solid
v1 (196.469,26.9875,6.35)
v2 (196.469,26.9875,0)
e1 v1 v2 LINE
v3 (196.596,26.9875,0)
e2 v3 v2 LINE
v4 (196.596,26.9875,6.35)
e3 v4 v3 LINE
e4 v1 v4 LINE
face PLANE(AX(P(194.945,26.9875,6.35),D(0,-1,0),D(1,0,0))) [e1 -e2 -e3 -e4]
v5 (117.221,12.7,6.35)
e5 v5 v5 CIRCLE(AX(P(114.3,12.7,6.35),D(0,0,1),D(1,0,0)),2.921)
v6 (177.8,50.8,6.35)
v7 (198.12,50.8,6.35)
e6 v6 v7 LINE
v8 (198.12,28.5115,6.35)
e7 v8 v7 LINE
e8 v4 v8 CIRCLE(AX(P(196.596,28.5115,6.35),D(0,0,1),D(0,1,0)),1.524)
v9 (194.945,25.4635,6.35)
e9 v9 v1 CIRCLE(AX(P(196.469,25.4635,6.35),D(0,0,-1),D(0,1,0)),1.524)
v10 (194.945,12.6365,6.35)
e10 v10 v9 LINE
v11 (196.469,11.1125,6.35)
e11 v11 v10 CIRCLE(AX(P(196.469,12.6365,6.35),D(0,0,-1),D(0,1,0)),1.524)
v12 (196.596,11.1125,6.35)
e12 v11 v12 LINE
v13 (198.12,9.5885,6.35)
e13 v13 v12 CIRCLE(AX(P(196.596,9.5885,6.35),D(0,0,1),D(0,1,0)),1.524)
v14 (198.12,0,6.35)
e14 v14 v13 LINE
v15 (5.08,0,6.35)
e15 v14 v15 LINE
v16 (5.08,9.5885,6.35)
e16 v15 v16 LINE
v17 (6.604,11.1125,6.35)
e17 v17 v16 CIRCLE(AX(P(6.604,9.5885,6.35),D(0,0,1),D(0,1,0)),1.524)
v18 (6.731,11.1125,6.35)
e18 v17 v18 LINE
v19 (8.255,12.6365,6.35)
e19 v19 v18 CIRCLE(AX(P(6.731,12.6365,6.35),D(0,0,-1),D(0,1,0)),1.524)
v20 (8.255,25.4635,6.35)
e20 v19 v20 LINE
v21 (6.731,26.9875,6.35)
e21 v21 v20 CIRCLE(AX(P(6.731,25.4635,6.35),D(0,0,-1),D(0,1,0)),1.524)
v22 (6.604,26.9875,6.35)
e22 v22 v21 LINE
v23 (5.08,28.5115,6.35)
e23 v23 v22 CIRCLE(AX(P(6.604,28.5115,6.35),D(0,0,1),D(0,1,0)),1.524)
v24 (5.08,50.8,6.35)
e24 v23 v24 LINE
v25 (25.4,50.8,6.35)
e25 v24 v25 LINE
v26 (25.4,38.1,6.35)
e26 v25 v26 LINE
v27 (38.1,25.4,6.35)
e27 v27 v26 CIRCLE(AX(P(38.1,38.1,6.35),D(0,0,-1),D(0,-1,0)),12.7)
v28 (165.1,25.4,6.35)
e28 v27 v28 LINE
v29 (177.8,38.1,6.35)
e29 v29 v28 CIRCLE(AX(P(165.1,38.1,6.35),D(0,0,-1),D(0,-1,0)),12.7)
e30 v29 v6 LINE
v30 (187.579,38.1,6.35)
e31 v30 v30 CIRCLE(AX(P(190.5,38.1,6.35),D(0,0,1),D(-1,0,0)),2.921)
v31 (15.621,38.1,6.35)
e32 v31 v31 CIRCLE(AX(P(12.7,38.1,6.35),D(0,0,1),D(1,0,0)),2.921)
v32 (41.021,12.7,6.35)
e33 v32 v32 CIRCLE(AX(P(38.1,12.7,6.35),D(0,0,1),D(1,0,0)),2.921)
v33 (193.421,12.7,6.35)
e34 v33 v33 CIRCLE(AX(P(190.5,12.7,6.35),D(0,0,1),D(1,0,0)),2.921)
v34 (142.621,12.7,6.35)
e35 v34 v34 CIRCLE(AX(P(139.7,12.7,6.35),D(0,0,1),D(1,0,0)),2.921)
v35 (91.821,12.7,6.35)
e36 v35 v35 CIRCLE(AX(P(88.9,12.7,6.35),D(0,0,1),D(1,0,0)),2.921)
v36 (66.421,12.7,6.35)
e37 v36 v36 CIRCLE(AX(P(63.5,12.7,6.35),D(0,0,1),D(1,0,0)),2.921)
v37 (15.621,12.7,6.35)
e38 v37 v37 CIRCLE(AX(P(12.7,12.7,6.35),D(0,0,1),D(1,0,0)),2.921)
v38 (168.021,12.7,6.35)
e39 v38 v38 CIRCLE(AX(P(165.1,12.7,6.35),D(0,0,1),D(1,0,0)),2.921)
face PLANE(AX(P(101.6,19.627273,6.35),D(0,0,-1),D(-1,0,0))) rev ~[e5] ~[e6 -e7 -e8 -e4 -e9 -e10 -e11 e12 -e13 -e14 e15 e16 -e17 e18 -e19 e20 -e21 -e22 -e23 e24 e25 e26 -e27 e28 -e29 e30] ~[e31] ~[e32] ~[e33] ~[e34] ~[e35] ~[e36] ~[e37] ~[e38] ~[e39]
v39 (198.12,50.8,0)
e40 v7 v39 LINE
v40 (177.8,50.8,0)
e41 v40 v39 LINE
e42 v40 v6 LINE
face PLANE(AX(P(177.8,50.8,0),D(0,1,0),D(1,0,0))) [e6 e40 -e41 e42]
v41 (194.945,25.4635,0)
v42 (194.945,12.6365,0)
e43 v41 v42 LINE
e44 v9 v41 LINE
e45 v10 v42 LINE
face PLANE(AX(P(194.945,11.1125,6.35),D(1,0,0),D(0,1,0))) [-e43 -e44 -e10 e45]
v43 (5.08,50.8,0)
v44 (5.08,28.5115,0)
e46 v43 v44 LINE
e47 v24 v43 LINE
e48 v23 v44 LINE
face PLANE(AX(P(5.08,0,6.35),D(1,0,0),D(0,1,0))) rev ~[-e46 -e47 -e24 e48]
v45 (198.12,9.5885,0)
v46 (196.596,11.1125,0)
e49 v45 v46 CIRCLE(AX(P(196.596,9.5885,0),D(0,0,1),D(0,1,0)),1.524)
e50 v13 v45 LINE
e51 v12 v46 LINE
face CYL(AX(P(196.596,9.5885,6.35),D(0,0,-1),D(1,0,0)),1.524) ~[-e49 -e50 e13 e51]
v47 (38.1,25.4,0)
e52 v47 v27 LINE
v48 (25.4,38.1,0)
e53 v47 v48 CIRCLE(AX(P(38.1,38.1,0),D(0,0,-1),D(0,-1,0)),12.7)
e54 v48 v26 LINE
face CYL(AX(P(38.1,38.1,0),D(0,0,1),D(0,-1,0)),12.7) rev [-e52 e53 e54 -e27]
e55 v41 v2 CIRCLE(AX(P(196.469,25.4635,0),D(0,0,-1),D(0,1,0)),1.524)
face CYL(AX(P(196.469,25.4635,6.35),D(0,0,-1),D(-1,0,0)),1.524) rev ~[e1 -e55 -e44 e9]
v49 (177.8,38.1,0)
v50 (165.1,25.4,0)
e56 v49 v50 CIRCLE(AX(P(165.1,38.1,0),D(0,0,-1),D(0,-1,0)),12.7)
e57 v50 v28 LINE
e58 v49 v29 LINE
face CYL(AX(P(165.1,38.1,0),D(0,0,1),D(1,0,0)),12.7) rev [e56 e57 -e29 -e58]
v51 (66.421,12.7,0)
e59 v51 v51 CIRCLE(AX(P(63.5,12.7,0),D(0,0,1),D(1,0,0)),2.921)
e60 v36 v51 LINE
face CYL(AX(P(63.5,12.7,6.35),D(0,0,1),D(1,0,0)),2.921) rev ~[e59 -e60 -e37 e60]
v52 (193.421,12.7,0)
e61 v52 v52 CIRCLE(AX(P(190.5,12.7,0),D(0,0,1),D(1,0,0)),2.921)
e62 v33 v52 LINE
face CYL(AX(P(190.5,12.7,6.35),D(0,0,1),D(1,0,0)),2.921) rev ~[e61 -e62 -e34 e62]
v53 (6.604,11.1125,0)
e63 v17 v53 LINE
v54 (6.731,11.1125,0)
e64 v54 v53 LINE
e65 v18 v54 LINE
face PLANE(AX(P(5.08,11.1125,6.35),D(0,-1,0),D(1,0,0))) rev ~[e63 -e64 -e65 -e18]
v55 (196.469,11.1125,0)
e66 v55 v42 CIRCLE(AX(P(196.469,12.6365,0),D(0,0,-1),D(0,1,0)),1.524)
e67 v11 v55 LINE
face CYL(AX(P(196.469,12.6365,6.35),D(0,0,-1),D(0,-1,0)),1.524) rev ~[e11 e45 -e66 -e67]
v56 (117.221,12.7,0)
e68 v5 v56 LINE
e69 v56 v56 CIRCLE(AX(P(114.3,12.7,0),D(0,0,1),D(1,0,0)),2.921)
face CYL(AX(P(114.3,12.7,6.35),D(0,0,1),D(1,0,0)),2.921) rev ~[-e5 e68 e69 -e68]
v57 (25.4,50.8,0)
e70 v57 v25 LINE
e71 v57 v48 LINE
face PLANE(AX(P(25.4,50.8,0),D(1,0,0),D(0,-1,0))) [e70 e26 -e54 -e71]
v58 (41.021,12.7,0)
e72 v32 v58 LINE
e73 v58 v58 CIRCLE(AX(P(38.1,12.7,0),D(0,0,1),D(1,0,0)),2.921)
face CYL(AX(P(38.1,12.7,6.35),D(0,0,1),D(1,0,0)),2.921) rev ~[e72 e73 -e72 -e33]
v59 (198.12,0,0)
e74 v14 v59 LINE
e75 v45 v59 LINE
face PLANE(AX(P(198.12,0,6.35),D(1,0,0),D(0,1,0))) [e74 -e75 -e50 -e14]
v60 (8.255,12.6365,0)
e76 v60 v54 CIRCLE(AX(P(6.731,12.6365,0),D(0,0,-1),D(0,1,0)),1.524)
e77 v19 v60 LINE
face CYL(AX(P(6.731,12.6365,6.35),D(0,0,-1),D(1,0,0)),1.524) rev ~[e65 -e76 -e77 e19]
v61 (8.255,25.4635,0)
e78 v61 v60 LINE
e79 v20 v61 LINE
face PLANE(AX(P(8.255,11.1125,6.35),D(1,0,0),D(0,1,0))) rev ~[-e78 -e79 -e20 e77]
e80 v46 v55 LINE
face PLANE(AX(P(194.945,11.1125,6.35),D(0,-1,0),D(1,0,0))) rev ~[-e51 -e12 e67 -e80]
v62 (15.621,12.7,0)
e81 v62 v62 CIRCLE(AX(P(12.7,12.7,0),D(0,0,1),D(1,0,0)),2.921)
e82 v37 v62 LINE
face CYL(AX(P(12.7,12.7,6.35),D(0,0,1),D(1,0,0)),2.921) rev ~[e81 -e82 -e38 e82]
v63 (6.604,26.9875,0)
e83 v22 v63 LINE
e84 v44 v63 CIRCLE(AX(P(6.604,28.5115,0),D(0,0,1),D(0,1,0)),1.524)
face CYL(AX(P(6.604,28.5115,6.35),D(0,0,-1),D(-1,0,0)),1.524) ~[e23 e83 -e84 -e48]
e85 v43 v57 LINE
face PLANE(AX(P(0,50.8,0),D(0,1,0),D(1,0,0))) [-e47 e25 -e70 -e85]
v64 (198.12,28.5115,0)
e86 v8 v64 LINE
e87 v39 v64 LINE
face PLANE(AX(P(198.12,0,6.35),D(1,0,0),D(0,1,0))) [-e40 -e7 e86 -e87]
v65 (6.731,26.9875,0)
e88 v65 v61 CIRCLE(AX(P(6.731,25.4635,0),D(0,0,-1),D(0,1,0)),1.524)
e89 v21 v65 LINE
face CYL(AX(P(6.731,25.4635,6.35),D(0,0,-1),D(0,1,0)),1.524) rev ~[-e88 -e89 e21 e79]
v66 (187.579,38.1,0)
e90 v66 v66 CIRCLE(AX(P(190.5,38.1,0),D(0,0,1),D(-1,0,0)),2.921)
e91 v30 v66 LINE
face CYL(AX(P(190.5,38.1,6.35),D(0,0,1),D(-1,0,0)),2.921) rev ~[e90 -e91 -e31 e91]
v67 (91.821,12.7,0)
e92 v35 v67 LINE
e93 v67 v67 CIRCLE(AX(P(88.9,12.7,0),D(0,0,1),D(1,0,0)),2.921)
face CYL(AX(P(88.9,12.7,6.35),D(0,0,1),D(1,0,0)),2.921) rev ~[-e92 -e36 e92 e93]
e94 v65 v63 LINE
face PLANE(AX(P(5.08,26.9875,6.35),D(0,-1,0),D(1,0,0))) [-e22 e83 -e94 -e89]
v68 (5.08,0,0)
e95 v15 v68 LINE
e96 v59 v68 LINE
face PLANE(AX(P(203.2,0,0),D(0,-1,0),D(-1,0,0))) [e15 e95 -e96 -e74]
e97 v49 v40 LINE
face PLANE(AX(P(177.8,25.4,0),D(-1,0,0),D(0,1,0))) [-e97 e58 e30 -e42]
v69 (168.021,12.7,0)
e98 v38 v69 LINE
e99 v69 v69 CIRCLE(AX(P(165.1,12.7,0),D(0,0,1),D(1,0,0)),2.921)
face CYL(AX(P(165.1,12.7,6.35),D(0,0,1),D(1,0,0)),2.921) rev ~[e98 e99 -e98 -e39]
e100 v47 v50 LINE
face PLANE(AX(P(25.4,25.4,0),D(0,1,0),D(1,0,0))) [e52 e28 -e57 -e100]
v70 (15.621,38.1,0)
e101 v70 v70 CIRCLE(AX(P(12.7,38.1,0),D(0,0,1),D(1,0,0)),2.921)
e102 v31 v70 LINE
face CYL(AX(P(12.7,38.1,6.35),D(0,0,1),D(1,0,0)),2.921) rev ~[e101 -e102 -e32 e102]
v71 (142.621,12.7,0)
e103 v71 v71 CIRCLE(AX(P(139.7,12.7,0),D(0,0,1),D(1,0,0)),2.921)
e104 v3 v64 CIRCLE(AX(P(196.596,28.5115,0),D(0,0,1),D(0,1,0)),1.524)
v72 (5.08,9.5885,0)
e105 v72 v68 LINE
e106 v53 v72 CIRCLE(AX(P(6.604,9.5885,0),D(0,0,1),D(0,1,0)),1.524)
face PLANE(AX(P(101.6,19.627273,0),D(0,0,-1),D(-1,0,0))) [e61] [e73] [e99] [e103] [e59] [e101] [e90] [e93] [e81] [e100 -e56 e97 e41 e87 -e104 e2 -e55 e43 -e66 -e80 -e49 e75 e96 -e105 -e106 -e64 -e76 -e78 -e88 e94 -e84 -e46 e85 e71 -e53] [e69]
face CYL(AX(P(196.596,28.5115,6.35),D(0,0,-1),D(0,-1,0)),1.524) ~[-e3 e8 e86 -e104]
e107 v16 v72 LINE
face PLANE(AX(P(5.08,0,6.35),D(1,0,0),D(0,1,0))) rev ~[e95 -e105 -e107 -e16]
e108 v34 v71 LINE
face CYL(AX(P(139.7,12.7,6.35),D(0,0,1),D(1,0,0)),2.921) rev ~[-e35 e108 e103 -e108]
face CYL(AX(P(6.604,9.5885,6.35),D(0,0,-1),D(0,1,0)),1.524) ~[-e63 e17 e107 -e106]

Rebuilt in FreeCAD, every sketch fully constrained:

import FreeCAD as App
import Part
import Sketcher
Q = App.Units.Quantity


def edges_at(feature, points):
    """Names of the edges that pass closest to the given points."""
    edges = feature.Shape.Edges
    near = lambda p: min(range(len(edges)), key=lambda i: edges[i].distToShape(Part.Vertex(*p))[0])
    return sorted({f"Edge{near(p) + 1}" for p in points})


def add_polygon(sketch, points):
    """Adds a closed chain of lines whose ends are joined by coincident constraints."""
    first, n = sketch.GeometryCount, len(points)
    for a, b in zip(points, points[1:] + points[:1]):
        sketch.addGeometry(Part.LineSegment(App.Vector(*a, 0), App.Vector(*b, 0)), False)
    for i in range(n):
        sketch.addConstraint(Sketcher.Constraint("Coincident", first + i, 2, first + (i + 1) % n, 1))

doc = App.newDocument("Part")
body = doc.addObject("PartDesign::Body", "Body")

# Sketch on XY plane
sketch1 = doc.addObject("Sketcher::SketchObject", "Sketch")
body.addObject(sketch1)
sketch1.AttachmentSupport = (doc.XY_Plane, [""])
sketch1.MapMode = "FlatFace"
add_polygon(sketch1, [(0, 51), (0, 0), (203, 0), (203, 51), (178, 51), (178, 25), (25, 25), (25, 51)])  # lines 0-7
sketch1.addConstraint([
    Sketcher.Constraint("Vertical", 0),
    Sketcher.Constraint("Horizontal", 1),
    Sketcher.Constraint("Vertical", 2),
    Sketcher.Constraint("Horizontal", 3),
    Sketcher.Constraint("Vertical", 4),
    Sketcher.Constraint("Horizontal", 5),
    Sketcher.Constraint("Vertical", 6),
    Sketcher.Constraint("Horizontal", 7),
    Sketcher.Constraint("Coincident", 0, 2, -1, 1),
    Sketcher.Constraint("Horizontal", 3, 2, 6, 2),
    Sketcher.Constraint("Equal", 3, 7),
    Sketcher.Constraint("Equal", 7, 4),
    Sketcher.Constraint("DistanceX", 1, 1, 1, 2, Q("8 in")),
    Sketcher.Constraint("DistanceX", 3, 2, 3, 1, Q("1 in")),
    Sketcher.Constraint("DistanceY", 0, 2, 0, 1, Q("2 in")),
])
pad1 = doc.addObject("PartDesign::Pad", "Pad")
body.addObject(pad1)
pad1.Profile = sketch1
pad1.Length = Q("0.25 in")

# Sketch on XY plane
sketch2 = doc.addObject("Sketcher::SketchObject", "Sketch001")
body.addObject(sketch2)
sketch2.AttachmentSupport = (doc.XY_Plane, [""])
sketch2.MapMode = "FlatFace"
sketch2.AttachmentOffset = App.Placement(App.Vector(0, 0, 0.25 * 25.4), App.Rotation())
sketch2.addGeometry([
    Part.Circle(App.Vector(12.7, 38.1, 0), App.Vector(0, 0, 1), 2.9),  # 0
    Part.Circle(App.Vector(12.7, 12.7, 0), App.Vector(0, 0, 1), 2.9),  # 1
    Part.Circle(App.Vector(38.1, 12.7, 0), App.Vector(0, 0, 1), 2.9),  # 2
    Part.Circle(App.Vector(63.5, 12.7, 0), App.Vector(0, 0, 1), 2.9),  # 3
    Part.Circle(App.Vector(88.9, 12.7, 0), App.Vector(0, 0, 1), 2.9),  # 4
    Part.Circle(App.Vector(114.3, 12.7, 0), App.Vector(0, 0, 1), 2.9),  # 5
    Part.Circle(App.Vector(139.7, 12.7, 0), App.Vector(0, 0, 1), 2.9),  # 6
    Part.Circle(App.Vector(165.1, 12.7, 0), App.Vector(0, 0, 1), 2.9),  # 7
    Part.Circle(App.Vector(190.5, 12.7, 0), App.Vector(0, 0, 1), 2.9),  # 8
    Part.Circle(App.Vector(190.5, 38.1, 0), App.Vector(0, 0, 1), 2.9),  # 9
], False)
sketch2.addConstraint([
    Sketcher.Constraint("Equal", 0, 1),
    Sketcher.Constraint("Equal", 1, 2),
    Sketcher.Constraint("Equal", 2, 3),
    Sketcher.Constraint("Equal", 3, 4),
    Sketcher.Constraint("Equal", 4, 5),
    Sketcher.Constraint("Equal", 5, 6),
    Sketcher.Constraint("Equal", 6, 7),
    Sketcher.Constraint("Equal", 7, 8),
    Sketcher.Constraint("Equal", 8, 9),
    Sketcher.Constraint("Horizontal", 1, 3, 2, 3),
    Sketcher.Constraint("Horizontal", 2, 3, 3, 3),
    Sketcher.Constraint("Horizontal", 3, 3, 4, 3),
    Sketcher.Constraint("Horizontal", 4, 3, 5, 3),
    Sketcher.Constraint("Horizontal", 5, 3, 6, 3),
    Sketcher.Constraint("Horizontal", 6, 3, 7, 3),
    Sketcher.Constraint("Horizontal", 7, 3, 8, 3),
    Sketcher.Constraint("Horizontal", 0, 3, 9, 3),
    Sketcher.Constraint("Vertical", 0, 3, 1, 3),
    Sketcher.Constraint("Vertical", 8, 3, 9, 3),
    Sketcher.Constraint("Diameter", 0, Q("0.23 in")),
    Sketcher.Constraint("DistanceY", 1, 3, 0, 3, Q("1 in")),
    Sketcher.Constraint("DistanceX", 1, 3, 2, 3, Q("1 in")),
    Sketcher.Constraint("DistanceX", 2, 3, 3, 3, Q("1 in")),
    Sketcher.Constraint("DistanceX", 3, 3, 4, 3, Q("1 in")),
    Sketcher.Constraint("DistanceX", 4, 3, 5, 3, Q("1 in")),
    Sketcher.Constraint("DistanceX", 5, 3, 6, 3, Q("1 in")),
    Sketcher.Constraint("DistanceX", 6, 3, 7, 3, Q("1 in")),
    Sketcher.Constraint("DistanceX", 7, 3, 8, 3, Q("1 in")),
    Sketcher.Constraint("DistanceX", -1, 1, 0, 3, Q("0.5 in")),
    Sketcher.Constraint("DistanceY", -1, 1, 0, 3, Q("1.5 in")),
])
pocket1 = doc.addObject("PartDesign::Pocket", "Pocket")
body.addObject(pocket1)
pocket1.Profile = sketch2
pocket1.Type = "ThroughAll"

# Sketch on XY plane
sketch3 = doc.addObject("Sketcher::SketchObject", "Sketch002")
body.addObject(sketch3)
sketch3.AttachmentSupport = (doc.XY_Plane, [""])
sketch3.MapMode = "FlatFace"
sketch3.AttachmentOffset = App.Placement(App.Vector(0, 0, 0.25 * 25.4), App.Rotation())
add_polygon(sketch3, [(0, 51), (0, 0), (5, 0), (5, 51)])  # lines 0-3
add_polygon(sketch3, [(198, 51), (198, 0), (203, 0), (203, 51)])  # lines 4-7
sketch3.addConstraint([
    Sketcher.Constraint("Vertical", 0),
    Sketcher.Constraint("Horizontal", 1),
    Sketcher.Constraint("Vertical", 2),
    Sketcher.Constraint("Horizontal", 3),
    Sketcher.Constraint("Vertical", 4),
    Sketcher.Constraint("Horizontal", 5),
    Sketcher.Constraint("Vertical", 6),
    Sketcher.Constraint("Horizontal", 7),
    Sketcher.Constraint("Coincident", 0, 2, -1, 1),
    Sketcher.Constraint("PointOnObject", 4, 2, -1),
    Sketcher.Constraint("Horizontal", 3, 2, 6, 2),
    Sketcher.Constraint("Equal", 3, 5),
    Sketcher.Constraint("DistanceY", 0, 2, 0, 1, Q("2 in")),
    Sketcher.Constraint("DistanceX", 1, 1, 1, 2, Q("0.2 in")),
    Sketcher.Constraint("DistanceX", -1, 1, 5, 2, Q("8 in")),
])
pocket2 = doc.addObject("PartDesign::Pocket", "Pocket001")
body.addObject(pocket2)
pocket2.Profile = sketch3
pocket2.Type = "ThroughAll"
doc.recompute()

fillet = doc.addObject("PartDesign::Fillet", "Fillet")
body.addObject(fillet)
fillet.Base = (pocket2, edges_at(pocket2, [(25.4, 25.4, 3.175), (177.8, 25.4, 3.175)]))
fillet.Radius = Q("0.5 in")

# Sketch on XY plane
sketch4 = doc.addObject("Sketcher::SketchObject", "Sketch003")
body.addObject(sketch4)
sketch4.AttachmentSupport = (doc.XY_Plane, [""])
sketch4.MapMode = "FlatFace"
sketch4.AttachmentOffset = App.Placement(App.Vector(0, 0, 0.25 * 25.4), App.Rotation())
add_polygon(sketch4, [(5.1, 27), (5.1, 11.1), (8.3, 11.1), (8.3, 27)])  # lines 0-3
add_polygon(sketch4, [(194.9, 27), (194.9, 11.1), (198.1, 11.1), (198.1, 27)])  # lines 4-7
sketch4.addConstraint([
    Sketcher.Constraint("Vertical", 0),
    Sketcher.Constraint("Horizontal", 1),
    Sketcher.Constraint("Vertical", 2),
    Sketcher.Constraint("Horizontal", 3),
    Sketcher.Constraint("Vertical", 4),
    Sketcher.Constraint("Horizontal", 5),
    Sketcher.Constraint("Vertical", 6),
    Sketcher.Constraint("Horizontal", 7),
    Sketcher.Constraint("Horizontal", 1, 2, 4, 2),
    Sketcher.Constraint("Horizontal", 3, 2, 6, 2),
    Sketcher.Constraint("Equal", 3, 5),
    Sketcher.Constraint("DistanceX", -1, 1, 0, 2, Q("0.2 in")),
    Sketcher.Constraint("DistanceX", -1, 1, 5, 2, Q("7.8 in")),
    Sketcher.Constraint("DistanceX", 1, 1, 1, 2, Q("0.125 in")),
    Sketcher.Constraint("DistanceY", 0, 2, 0, 1, Q("0.625 in")),
    Sketcher.Constraint("DistanceY", -1, 1, 0, 2, Q("0.4375 in")),
])
pocket3 = doc.addObject("PartDesign::Pocket", "Pocket002")
body.addObject(pocket3)
pocket3.Profile = sketch4
pocket3.Type = "ThroughAll"
doc.recompute()

fillet2 = doc.addObject("PartDesign::Fillet", "Fillet001")
body.addObject(fillet2)
fillet2.Base = (pocket3, edges_at(pocket3, [
    (5.08, 11.113, 3.175),
    (5.08, 26.988, 3.175),
    (8.255, 26.988, 3.175),
    (8.255, 11.113, 3.175),
    (198.12, 11.113, 3.175),
    (194.945, 11.113, 3.175),
    (194.945, 26.988, 3.175),
    (198.12, 26.988, 3.175),
]))
fillet2.Radius = Q("0.06 in")

doc.recompute()
